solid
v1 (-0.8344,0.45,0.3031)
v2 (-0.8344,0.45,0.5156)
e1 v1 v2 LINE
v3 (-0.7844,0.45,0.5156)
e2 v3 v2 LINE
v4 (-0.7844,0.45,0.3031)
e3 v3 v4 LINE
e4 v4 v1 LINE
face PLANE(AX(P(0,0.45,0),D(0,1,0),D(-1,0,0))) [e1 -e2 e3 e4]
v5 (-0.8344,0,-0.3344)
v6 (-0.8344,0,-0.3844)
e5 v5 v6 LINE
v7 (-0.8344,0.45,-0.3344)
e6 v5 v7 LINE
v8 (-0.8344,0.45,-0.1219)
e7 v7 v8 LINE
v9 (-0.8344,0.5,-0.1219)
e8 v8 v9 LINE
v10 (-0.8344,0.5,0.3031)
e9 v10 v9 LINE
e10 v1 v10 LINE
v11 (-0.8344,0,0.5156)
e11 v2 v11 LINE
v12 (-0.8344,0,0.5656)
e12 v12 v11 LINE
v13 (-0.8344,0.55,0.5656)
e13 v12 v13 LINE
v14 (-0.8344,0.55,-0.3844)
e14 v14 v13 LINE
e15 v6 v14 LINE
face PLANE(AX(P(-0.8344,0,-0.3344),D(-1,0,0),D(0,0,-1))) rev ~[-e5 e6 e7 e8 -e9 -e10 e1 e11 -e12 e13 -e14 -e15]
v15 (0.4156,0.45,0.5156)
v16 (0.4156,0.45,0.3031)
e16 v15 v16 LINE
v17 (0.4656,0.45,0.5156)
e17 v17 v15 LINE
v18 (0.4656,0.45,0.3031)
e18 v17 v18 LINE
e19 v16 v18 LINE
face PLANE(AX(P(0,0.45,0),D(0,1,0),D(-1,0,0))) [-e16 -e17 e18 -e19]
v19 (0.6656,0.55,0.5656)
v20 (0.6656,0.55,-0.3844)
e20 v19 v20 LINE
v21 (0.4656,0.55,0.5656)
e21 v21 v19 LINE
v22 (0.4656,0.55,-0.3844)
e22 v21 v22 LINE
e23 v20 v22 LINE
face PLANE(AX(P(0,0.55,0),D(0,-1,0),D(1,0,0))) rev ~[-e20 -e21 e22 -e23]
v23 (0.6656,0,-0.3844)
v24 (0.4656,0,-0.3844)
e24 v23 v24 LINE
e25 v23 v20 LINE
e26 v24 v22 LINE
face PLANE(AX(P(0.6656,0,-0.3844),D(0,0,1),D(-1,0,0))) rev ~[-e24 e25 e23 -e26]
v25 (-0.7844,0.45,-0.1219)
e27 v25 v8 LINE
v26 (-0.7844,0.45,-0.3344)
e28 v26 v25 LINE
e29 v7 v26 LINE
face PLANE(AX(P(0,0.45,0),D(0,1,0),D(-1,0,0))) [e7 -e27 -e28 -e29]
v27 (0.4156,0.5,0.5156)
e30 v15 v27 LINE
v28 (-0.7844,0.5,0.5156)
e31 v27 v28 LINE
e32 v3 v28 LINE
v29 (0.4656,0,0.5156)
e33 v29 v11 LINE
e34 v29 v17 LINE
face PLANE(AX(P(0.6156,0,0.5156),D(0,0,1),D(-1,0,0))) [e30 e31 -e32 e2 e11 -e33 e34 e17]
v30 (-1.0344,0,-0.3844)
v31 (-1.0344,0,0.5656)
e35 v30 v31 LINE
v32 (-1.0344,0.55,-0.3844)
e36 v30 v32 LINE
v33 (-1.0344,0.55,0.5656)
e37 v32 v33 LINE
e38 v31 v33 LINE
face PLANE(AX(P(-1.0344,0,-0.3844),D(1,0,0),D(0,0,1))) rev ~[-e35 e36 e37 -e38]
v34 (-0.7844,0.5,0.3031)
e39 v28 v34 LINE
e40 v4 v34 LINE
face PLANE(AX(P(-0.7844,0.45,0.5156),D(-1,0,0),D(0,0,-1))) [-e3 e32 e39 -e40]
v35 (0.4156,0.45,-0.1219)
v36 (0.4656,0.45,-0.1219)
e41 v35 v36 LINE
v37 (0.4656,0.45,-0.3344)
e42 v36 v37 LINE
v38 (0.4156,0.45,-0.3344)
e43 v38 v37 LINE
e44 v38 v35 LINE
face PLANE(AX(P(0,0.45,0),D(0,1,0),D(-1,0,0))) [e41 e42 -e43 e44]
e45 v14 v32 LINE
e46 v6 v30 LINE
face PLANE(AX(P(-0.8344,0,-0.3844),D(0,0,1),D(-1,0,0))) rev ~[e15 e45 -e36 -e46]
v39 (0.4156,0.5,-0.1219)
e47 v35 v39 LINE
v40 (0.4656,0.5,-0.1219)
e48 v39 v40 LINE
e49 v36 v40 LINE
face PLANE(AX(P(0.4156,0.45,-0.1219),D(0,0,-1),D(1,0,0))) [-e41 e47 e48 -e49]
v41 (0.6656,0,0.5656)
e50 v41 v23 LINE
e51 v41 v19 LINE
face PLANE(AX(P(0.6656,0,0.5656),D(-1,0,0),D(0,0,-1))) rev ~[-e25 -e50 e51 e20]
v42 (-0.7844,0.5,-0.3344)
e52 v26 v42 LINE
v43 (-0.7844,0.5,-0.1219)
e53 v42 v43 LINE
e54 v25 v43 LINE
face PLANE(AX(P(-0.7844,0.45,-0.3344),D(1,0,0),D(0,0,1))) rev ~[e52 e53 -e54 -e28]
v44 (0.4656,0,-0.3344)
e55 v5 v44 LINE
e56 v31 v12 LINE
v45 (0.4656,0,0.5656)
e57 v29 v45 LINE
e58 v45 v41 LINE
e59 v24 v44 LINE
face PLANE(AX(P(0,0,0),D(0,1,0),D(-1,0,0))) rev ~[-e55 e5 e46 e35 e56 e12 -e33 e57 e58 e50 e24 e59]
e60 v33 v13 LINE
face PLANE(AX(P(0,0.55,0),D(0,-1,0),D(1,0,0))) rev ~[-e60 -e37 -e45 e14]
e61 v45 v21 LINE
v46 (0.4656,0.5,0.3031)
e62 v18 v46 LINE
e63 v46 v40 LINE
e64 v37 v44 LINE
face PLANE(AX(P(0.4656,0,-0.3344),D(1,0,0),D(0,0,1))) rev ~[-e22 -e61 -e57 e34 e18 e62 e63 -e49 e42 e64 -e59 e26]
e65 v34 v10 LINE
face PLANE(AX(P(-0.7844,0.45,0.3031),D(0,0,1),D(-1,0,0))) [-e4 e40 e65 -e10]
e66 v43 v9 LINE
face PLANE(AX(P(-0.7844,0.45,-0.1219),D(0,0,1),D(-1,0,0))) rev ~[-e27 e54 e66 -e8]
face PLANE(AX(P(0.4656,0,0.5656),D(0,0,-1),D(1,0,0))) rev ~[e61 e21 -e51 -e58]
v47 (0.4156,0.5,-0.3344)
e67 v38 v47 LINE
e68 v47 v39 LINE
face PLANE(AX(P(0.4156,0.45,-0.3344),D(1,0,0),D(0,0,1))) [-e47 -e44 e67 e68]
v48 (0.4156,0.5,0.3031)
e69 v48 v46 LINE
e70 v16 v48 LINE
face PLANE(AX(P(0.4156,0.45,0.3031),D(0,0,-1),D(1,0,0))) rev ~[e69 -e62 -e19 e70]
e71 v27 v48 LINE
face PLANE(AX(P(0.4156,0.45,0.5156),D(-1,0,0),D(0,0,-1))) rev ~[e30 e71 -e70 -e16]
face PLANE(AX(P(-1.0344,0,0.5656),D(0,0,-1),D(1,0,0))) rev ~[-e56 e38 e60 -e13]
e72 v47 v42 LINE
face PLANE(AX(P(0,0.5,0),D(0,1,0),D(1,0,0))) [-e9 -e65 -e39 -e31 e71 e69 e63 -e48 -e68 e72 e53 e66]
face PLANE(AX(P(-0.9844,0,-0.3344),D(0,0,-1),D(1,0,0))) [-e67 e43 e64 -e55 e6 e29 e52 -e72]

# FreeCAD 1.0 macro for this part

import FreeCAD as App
import Part
import Sketcher

V = App.Vector
Q = App.Units.Quantity

doc = App.newDocument("Part")
body = doc.addObject("PartDesign::Body", "Body")

# Sketch on XZ plane
sketch1 = body.newObject("Sketcher::SketchObject", "Sketch")
sketch1.AttachmentSupport = (doc.getObject("XZ_Plane"), [""])
sketch1.MapMode = "FlatFace"
sketch1.addGeometry(Part.LineSegment(V(-0.9844, 0.5156, 0), V(0.6156, 0.5156, 0)), False)
sketch1.addGeometry(Part.LineSegment(V(0.6156, 0.5156, 0), V(0.6156, -0.3344, 0)), False)
sketch1.addGeometry(Part.LineSegment(V(0.6156, -0.3344, 0), V(-0.9844, -0.3344, 0)), False)
sketch1.addGeometry(Part.LineSegment(V(-0.9844, -0.3344, 0), V(-0.9844, 0.5156, 0)), False)
sketch1.addConstraint(Sketcher.Constraint("Coincident", 0, 2, 1, 1))
sketch1.addConstraint(Sketcher.Constraint("Coincident", 1, 2, 2, 1))
sketch1.addConstraint(Sketcher.Constraint("Coincident", 2, 2, 3, 1))
sketch1.addConstraint(Sketcher.Constraint("Coincident", 3, 2, 0, 1))
sketch1.addConstraint(Sketcher.Constraint("Horizontal", 0))
sketch1.addConstraint(Sketcher.Constraint("Vertical", 1))
sketch1.addConstraint(Sketcher.Constraint("Horizontal", 2))
sketch1.addConstraint(Sketcher.Constraint("Vertical", 3))
sketch1.addConstraint(Sketcher.Constraint("DistanceX", 0, 1, 0, 2, Q("1.6 mm")))
sketch1.addConstraint(Sketcher.Constraint("DistanceY", 1, 2, 1, 1, Q("0.85 mm")))
sketch1.addConstraint(Sketcher.Constraint("DistanceX", -1, 1, 0, 2, Q("0.6156 mm")))
sketch1.addConstraint(Sketcher.Constraint("DistanceY", -1, 1, 0, 2, Q("0.5156 mm")))
pad1 = body.newObject("PartDesign::Pad", "Pad")
pad1.Profile = sketch1
pad1.Length = 0.45
pad1.Reversed = True

# Sketch on XZ plane
sketch2 = body.newObject("Sketcher::SketchObject", "Sketch001")
sketch2.AttachmentSupport = (doc.getObject("XZ_Plane"), [""])
sketch2.MapMode = "FlatFace"
sketch2.addGeometry(Part.LineSegment(V(0.4656, 0.5656, 0), V(0.4656, -0.3844, 0)), False)
sketch2.addGeometry(Part.LineSegment(V(0.4656, -0.3844, 0), V(0.6656, -0.3844, 0)), False)
sketch2.addGeometry(Part.LineSegment(V(0.6656, -0.3844, 0), V(0.6656, 0.5656, 0)), False)
sketch2.addGeometry(Part.LineSegment(V(0.6656, 0.5656, 0), V(0.4656, 0.5656, 0)), False)
sketch2.addGeometry(Part.LineSegment(V(-0.8344, -0.3844, 0), V(-0.8344, 0.5656, 0)), False)
sketch2.addGeometry(Part.LineSegment(V(-0.8344, 0.5656, 0), V(-1.0344, 0.5656, 0)), False)
sketch2.addGeometry(Part.LineSegment(V(-1.0344, 0.5656, 0), V(-1.0344, -0.3844, 0)), False)
sketch2.addGeometry(Part.LineSegment(V(-1.0344, -0.3844, 0), V(-0.8344, -0.3844, 0)), False)
sketch2.addConstraint(Sketcher.Constraint("Coincident", 0, 2, 1, 1))
sketch2.addConstraint(Sketcher.Constraint("Coincident", 1, 2, 2, 1))
sketch2.addConstraint(Sketcher.Constraint("Coincident", 2, 2, 3, 1))
sketch2.addConstraint(Sketcher.Constraint("Coincident", 3, 2, 0, 1))
sketch2.addConstraint(Sketcher.Constraint("Coincident", 4, 2, 5, 1))
sketch2.addConstraint(Sketcher.Constraint("Coincident", 5, 2, 6, 1))
sketch2.addConstraint(Sketcher.Constraint("Coincident", 6, 2, 7, 1))
sketch2.addConstraint(Sketcher.Constraint("Coincident", 7, 2, 4, 1))
sketch2.addConstraint(Sketcher.Constraint("Vertical", 0))
sketch2.addConstraint(Sketcher.Constraint("Horizontal", 1))
sketch2.addConstraint(Sketcher.Constraint("Vertical", 2))
sketch2.addConstraint(Sketcher.Constraint("Horizontal", 3))
sketch2.addConstraint(Sketcher.Constraint("Vertical", 4))
sketch2.addConstraint(Sketcher.Constraint("Horizontal", 5))
sketch2.addConstraint(Sketcher.Constraint("Vertical", 6))
sketch2.addConstraint(Sketcher.Constraint("Horizontal", 7))
sketch2.addConstraint(Sketcher.Constraint("Horizontal", 3, 2, 4, 2))
sketch2.addConstraint(Sketcher.Constraint("Horizontal", 1, 2, 6, 2))
sketch2.addConstraint(Sketcher.Constraint("Equal", 3, 5))
sketch2.addConstraint(Sketcher.Constraint("DistanceX", 1, 1, 1, 2, Q("0.2 mm")))
sketch2.addConstraint(Sketcher.Constraint("DistanceY", 0, 2, 0, 1, Q("0.95 mm")))
sketch2.addConstraint(Sketcher.Constraint("DistanceX", 5, 2, 2, 2, Q("1.7 mm")))
sketch2.addConstraint(Sketcher.Constraint("DistanceX", -1, 1, 0, 2, Q("0.4656 mm")))
sketch2.addConstraint(Sketcher.Constraint("DistanceY", 0, 2, -1, 1, Q("0.3844 mm")))
pad2 = body.newObject("PartDesign::Pad", "Pad001")
pad2.Profile = sketch2
pad2.Length = 0.55
pad2.Reversed = True

# Sketch on XZ plane
sketch3 = body.newObject("Sketcher::SketchObject", "Sketch002")
sketch3.AttachmentSupport = (doc.getObject("XZ_Plane"), [""])
sketch3.MapMode = "FlatFace"
sketch3.AttachmentOffset = App.Placement(V(0, 0, -0.45), App.Rotation())
sketch3.addGeometry(Part.LineSegment(V(0.4156, 0.3031, 0), V(0.4656, 0.3031, 0)), False)
sketch3.addGeometry(Part.LineSegment(V(0.4656, 0.3031, 0), V(0.4656, -0.1219, 0)), False)
sketch3.addGeometry(Part.LineSegment(V(0.4656, -0.1219, 0), V(0.4156, -0.1219, 0)), False)
sketch3.addGeometry(Part.LineSegment(V(0.4156, -0.1219, 0), V(0.4156, -0.3344, 0)), False)
sketch3.addGeometry(Part.LineSegment(V(0.4156, -0.3344, 0), V(-0.7844, -0.3344, 0)), False)
sketch3.addGeometry(Part.LineSegment(V(-0.7844, -0.3344, 0), V(-0.7844, -0.1219, 0)), False)
sketch3.addGeometry(Part.LineSegment(V(-0.7844, -0.1219, 0), V(-0.8344, -0.1219, 0)), False)
sketch3.addGeometry(Part.LineSegment(V(-0.8344, -0.1219, 0), V(-0.8344, 0.3031, 0)), False)
sketch3.addGeometry(Part.LineSegment(V(-0.8344, 0.3031, 0), V(-0.7844, 0.3031, 0)), False)
sketch3.addGeometry(Part.LineSegment(V(-0.7844, 0.3031, 0), V(-0.7844, 0.5156, 0)), False)
sketch3.addGeometry(Part.LineSegment(V(-0.7844, 0.5156, 0), V(0.4156, 0.5156, 0)), False)
sketch3.addGeometry(Part.LineSegment(V(0.4156, 0.5156, 0), V(0.4156, 0.3031, 0)), False)
sketch3.addConstraint(Sketcher.Constraint("Coincident", 0, 2, 1, 1))
sketch3.addConstraint(Sketcher.Constraint("Coincident", 1, 2, 2, 1))
sketch3.addConstraint(Sketcher.Constraint("Coincident", 2, 2, 3, 1))
sketch3.addConstraint(Sketcher.Constraint("Coincident", 3, 2, 4, 1))
sketch3.addConstraint(Sketcher.Constraint("Coincident", 4, 2, 5, 1))
sketch3.addConstraint(Sketcher.Constraint("Coincident", 5, 2, 6, 1))
sketch3.addConstraint(Sketcher.Constraint("Coincident", 6, 2, 7, 1))
sketch3.addConstraint(Sketcher.Constraint("Coincident", 7, 2, 8, 1))
sketch3.addConstraint(Sketcher.Constraint("Coincident", 8, 2, 9, 1))
sketch3.addConstraint(Sketcher.Constraint("Coincident", 9, 2, 10, 1))
sketch3.addConstraint(Sketcher.Constraint("Coincident", 10, 2, 11, 1))
sketch3.addConstraint(Sketcher.Constraint("Coincident", 11, 2, 0, 1))
sketch3.addConstraint(Sketcher.Constraint("Horizontal", 0))
sketch3.addConstraint(Sketcher.Constraint("Vertical", 1))
sketch3.addConstraint(Sketcher.Constraint("Horizontal", 2))
sketch3.addConstraint(Sketcher.Constraint("Vertical", 3))
sketch3.addConstraint(Sketcher.Constraint("Horizontal", 4))
sketch3.addConstraint(Sketcher.Constraint("Vertical", 5))
sketch3.addConstraint(Sketcher.Constraint("Horizontal", 6))
sketch3.addConstraint(Sketcher.Constraint("Vertical", 7))
sketch3.addConstraint(Sketcher.Constraint("Horizontal", 8))
sketch3.addConstraint(Sketcher.Constraint("Vertical", 9))
sketch3.addConstraint(Sketcher.Constraint("Horizontal", 10))
sketch3.addConstraint(Sketcher.Constraint("Vertical", 11))
sketch3.addConstraint(Sketcher.Constraint("Horizontal", 2, 2, 5, 2))
sketch3.addConstraint(Sketcher.Constraint("Horizontal", 0, 2, 7, 2))
sketch3.addConstraint(Sketcher.Constraint("Vertical", 5, 2, 8, 2))
sketch3.addConstraint(Sketcher.Constraint("Vertical", 3, 2, 10, 2))
sketch3.addConstraint(Sketcher.Constraint("Equal", 2, 6))
sketch3.addConstraint(Sketcher.Constraint("Equal", 5, 9))
sketch3.addConstraint(Sketcher.Constraint("DistanceX", 0, 1, 0, 2, Q("0.05 mm")))
sketch3.addConstraint(Sketcher.Constraint("DistanceX", 4, 2, 4, 1, Q("1.2 mm")))
sketch3.addConstraint(Sketcher.Constraint("DistanceY", 3, 2, 3, 1, Q("0.2125 mm")))
sketch3.addConstraint(Sketcher.Constraint("DistanceY", 1, 2, 1, 1, Q("0.425 mm")))
sketch3.addConstraint(Sketcher.Constraint("DistanceY", -1, 1, 0, 2, Q("0.303 mm")))
sketch3.addConstraint(Sketcher.Constraint("DistanceX", -1, 1, 0, 2, Q("0.4656 mm")))
pad3 = body.newObject("PartDesign::Pad", "Pad002")
pad3.Profile = sketch3
pad3.Length = 0.05
pad3.Reversed = True

doc.recompute()
